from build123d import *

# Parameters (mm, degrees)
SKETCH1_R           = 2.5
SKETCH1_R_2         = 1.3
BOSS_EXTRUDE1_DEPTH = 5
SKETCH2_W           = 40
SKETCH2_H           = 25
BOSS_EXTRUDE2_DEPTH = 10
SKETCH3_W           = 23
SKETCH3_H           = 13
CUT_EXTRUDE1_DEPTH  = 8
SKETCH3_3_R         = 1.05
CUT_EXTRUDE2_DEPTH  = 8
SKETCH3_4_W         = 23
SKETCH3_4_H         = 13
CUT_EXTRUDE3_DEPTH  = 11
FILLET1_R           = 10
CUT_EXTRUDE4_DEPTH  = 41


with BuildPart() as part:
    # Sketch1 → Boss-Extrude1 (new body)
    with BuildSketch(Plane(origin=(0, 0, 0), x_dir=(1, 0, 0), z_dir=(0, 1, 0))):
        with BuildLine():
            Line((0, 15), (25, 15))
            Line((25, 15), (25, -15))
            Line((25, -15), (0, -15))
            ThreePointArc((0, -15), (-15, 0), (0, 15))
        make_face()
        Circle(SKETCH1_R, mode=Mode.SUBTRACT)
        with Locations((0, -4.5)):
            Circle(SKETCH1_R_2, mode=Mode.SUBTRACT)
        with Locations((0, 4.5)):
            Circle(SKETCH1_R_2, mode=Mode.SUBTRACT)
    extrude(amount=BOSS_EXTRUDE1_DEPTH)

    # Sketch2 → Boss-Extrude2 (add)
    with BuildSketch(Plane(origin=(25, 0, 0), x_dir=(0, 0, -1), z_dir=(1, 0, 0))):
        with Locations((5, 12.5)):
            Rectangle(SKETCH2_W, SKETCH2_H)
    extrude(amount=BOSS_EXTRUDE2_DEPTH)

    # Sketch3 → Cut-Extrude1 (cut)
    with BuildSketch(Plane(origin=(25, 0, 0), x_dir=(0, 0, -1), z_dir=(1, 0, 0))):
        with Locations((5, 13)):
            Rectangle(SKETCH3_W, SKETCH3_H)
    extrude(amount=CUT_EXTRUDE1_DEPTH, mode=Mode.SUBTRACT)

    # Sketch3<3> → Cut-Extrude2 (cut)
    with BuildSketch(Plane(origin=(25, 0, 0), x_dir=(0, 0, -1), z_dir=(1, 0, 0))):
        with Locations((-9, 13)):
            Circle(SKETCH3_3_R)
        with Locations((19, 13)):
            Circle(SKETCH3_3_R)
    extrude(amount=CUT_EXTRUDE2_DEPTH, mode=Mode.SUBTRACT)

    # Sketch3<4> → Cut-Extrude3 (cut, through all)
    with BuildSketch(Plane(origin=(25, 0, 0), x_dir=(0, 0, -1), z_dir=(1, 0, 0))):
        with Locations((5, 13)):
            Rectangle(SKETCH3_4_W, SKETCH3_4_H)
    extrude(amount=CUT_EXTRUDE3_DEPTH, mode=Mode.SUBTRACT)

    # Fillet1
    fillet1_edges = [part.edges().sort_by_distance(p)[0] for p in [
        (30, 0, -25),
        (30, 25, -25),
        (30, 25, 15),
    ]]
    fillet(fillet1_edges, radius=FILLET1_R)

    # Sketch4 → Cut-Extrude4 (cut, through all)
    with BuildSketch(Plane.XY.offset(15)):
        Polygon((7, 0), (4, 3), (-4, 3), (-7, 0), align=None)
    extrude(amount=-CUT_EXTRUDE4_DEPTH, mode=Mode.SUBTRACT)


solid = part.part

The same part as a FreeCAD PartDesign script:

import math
import FreeCAD as App
import Part
import Sketcher

V = App.Vector
Q = App.Units.Quantity


def edges_at(feature, points):
    """Names of the edges that pass closest to the given points."""
    edges = feature.Shape.Edges
    near = lambda p: min(range(len(edges)), key=lambda i: edges[i].distToShape(Part.Vertex(*p))[0])
    return sorted({f"Edge{near(p) + 1}" for p in points})

doc = App.newDocument("Part")
body = doc.addObject("PartDesign::Body", "Body")

sketch1 = body.newObject("Sketcher::SketchObject", "Sketch")
sketch1.AttachmentSupport = (doc.getObject("XZ_Plane"), [""])
sketch1.MapMode = "FlatFace"
sketch1.addGeometry([
    Part.LineSegment(V(25, -15, 0), V(0, -15, 0)),
    Part.ArcOfCircle(Part.Circle(V(0, 0, 0), V(0, 0, 1), 15), math.radians(90), math.radians(270)),
    Part.LineSegment(V(0, 15, 0), V(25, 15, 0)),
    Part.LineSegment(V(25, 15, 0), V(25, -15, 0)),
    Part.Circle(V(0, 4.5, 0), V(0, 0, 1), 1.3),
    Part.Circle(V(0, 0, 0), V(0, 0, 1), 2.5),
    Part.Circle(V(0, -4.5, 0), V(0, 0, 1), 1.3),
], False)
sketch1.addConstraint([
    Sketcher.Constraint("Tangent", 0, 2, 1, 2),
    Sketcher.Constraint("Tangent", 1, 1, 2, 1),
    Sketcher.Constraint("Coincident", 2, 2, 3, 1),
    Sketcher.Constraint("Coincident", 3, 2, 0, 1),
    Sketcher.Constraint("Horizontal", 0),
    Sketcher.Constraint("Horizontal", 2),
    Sketcher.Constraint("Vertical", 3),
    Sketcher.Constraint("Coincident", 1, 3, -1, 1),
    Sketcher.Constraint("Coincident", 5, 3, -1, 1),
    Sketcher.Constraint("Equal", 4, 6),
    Sketcher.Constraint("Symmetric", 4, 3, 6, 3, -1, 1),
    Sketcher.Constraint("PointOnObject", 4, 3, -2),
    Sketcher.Constraint("Diameter", 5, Q("5 mm")),
    Sketcher.Constraint("Radius", 1, Q("15 mm")),
    Sketcher.Constraint("Diameter", 4, Q("2.6 mm")),
    Sketcher.Constraint("DistanceX", 0, 2, 0, 1, Q("25 mm")),
    Sketcher.Constraint("DistanceY", 6, 3, 4, 3, Q("9 mm")),
])
pad1 = body.newObject("PartDesign::Pad", "Pad")
pad1.Profile = sketch1
pad1.Length = 5
pad1.Reversed = True

sketch2 = body.newObject("Sketcher::SketchObject", "Sketch001")
sketch2.AttachmentSupport = (doc.getObject("YZ_Plane"), [""])
sketch2.MapMode = "FlatFace"
sketch2.AttachmentOffset = App.Placement(V(0, 0, 25), App.Rotation())
sketch2.addGeometry([
    Part.LineSegment(V(25, 15, 0), V(0, 15, 0)),
    Part.LineSegment(V(0, 15, 0), V(0, -25, 0)),
    Part.LineSegment(V(0, -25, 0), V(25, -25, 0)),
    Part.LineSegment(V(25, -25, 0), V(25, 15, 0)),
], False)
sketch2.addConstraint([
    Sketcher.Constraint("Coincident", 0, 2, 1, 1),
    Sketcher.Constraint("Coincident", 1, 2, 2, 1),
    Sketcher.Constraint("Coincident", 2, 2, 3, 1),
    Sketcher.Constraint("Coincident", 3, 2, 0, 1),
    Sketcher.Constraint("Horizontal", 0),
    Sketcher.Constraint("Vertical", 1),
    Sketcher.Constraint("Horizontal", 2),
    Sketcher.Constraint("Vertical", 3),
    Sketcher.Constraint("PointOnObject", 0, 2, -2),
    Sketcher.Constraint("DistanceX", 0, 2, 0, 1, Q("25 mm")),
    Sketcher.Constraint("DistanceY", 1, 2, 1, 1, Q("40 mm")),
    Sketcher.Constraint("DistanceY", -1, 1, 0, 2, Q("15 mm")),
])
pad2 = body.newObject("PartDesign::Pad", "Pad001")
pad2.Profile = sketch2
pad2.Length = 10

sketch3 = body.newObject("Sketcher::SketchObject", "Sketch002")
sketch3.AttachmentSupport = (doc.getObject("YZ_Plane"), [""])
sketch3.MapMode = "FlatFace"
sketch3.AttachmentOffset = App.Placement(V(0, 0, 25), App.Rotation())
sketch3.addGeometry([
    Part.LineSegment(V(20, 6, 0), V(6, 6, 0)),
    Part.LineSegment(V(6, 6, 0), V(6, -16, 0)),
    Part.LineSegment(V(6, -16, 0), V(20, -16, 0)),
    Part.LineSegment(V(20, -16, 0), V(20, 6, 0)),
], False)
sketch3.addConstraint([
    Sketcher.Constraint("Coincident", 0, 2, 1, 1),
    Sketcher.Constraint("Coincident", 1, 2, 2, 1),
    Sketcher.Constraint("Coincident", 2, 2, 3, 1),
    Sketcher.Constraint("Coincident", 3, 2, 0, 1),
    Sketcher.Constraint("Horizontal", 0),
    Sketcher.Constraint("Vertical", 1),
    Sketcher.Constraint("Horizontal", 2),
    Sketcher.Constraint("Vertical", 3),
    Sketcher.Constraint("DistanceX", 0, 2, 0, 1, Q("13 mm")),
    Sketcher.Constraint("DistanceY", 1, 2, 1, 1, Q("23 mm")),
    Sketcher.Constraint("DistanceX", -1, 1, 0, 2, Q("6.5 mm")),
    Sketcher.Constraint("DistanceY", -1, 1, 0, 2, Q("6.5 mm")),
])
pocket1 = body.newObject("PartDesign::Pocket", "Pocket")
pocket1.Profile = sketch3
pocket1.Length = 8
pocket1.Reversed = True

sketch4 = body.newObject("Sketcher::SketchObject", "Sketch003")
sketch4.AttachmentSupport = (doc.getObject("YZ_Plane"), [""])
sketch4.MapMode = "FlatFace"
sketch4.AttachmentOffset = App.Placement(V(0, 0, 25), App.Rotation())
sketch4.addGeometry([
    Part.Circle(V(13, 9, 0), V(0, 0, 1), 1.1),
    Part.Circle(V(13, -19, 0), V(0, 0, 1), 1.1),
], False)
sketch4.addConstraint([
    Sketcher.Constraint("Equal", 0, 1),
    Sketcher.Constraint("Vertical", 0, 3, 1, 3),
    Sketcher.Constraint("Diameter", 0, Q("2.1 mm")),
    Sketcher.Constraint("DistanceX", -1, 1, 0, 3, Q("13 mm")),
    Sketcher.Constraint("DistanceY", -1, 1, 0, 3, Q("9 mm")),
    Sketcher.Constraint("DistanceY", 1, 3, -1, 1, Q("19 mm")),
])
pocket2 = body.newObject("PartDesign::Pocket", "Pocket001")
pocket2.Profile = sketch4
pocket2.Length = 8
pocket2.Reversed = True

sketch5 = body.newObject("Sketcher::SketchObject", "Sketch004")
sketch5.AttachmentSupport = (doc.getObject("YZ_Plane"), [""])
sketch5.MapMode = "FlatFace"
sketch5.AttachmentOffset = App.Placement(V(0, 0, 25), App.Rotation())
sketch5.addGeometry([
    Part.LineSegment(V(20, 6, 0), V(6, 6, 0)),
    Part.LineSegment(V(6, 6, 0), V(6, -16, 0)),
    Part.LineSegment(V(6, -16, 0), V(20, -16, 0)),
    Part.LineSegment(V(20, -16, 0), V(20, 6, 0)),
], False)
sketch5.addConstraint([
    Sketcher.Constraint("Coincident", 0, 2, 1, 1),
    Sketcher.Constraint("Coincident", 1, 2, 2, 1),
    Sketcher.Constraint("Coincident", 2, 2, 3, 1),
    Sketcher.Constraint("Coincident", 3, 2, 0, 1),
    Sketcher.Constraint("Horizontal", 0),
    Sketcher.Constraint("Vertical", 1),
    Sketcher.Constraint("Horizontal", 2),
    Sketcher.Constraint("Vertical", 3),
    Sketcher.Constraint("DistanceX", 0, 2, 0, 1, Q("13 mm")),
    Sketcher.Constraint("DistanceY", 1, 2, 1, 1, Q("23 mm")),
    Sketcher.Constraint("DistanceX", -1, 1, 0, 2, Q("6.5 mm")),
    Sketcher.Constraint("DistanceY", -1, 1, 0, 2, Q("6.5 mm")),
])
pocket3 = body.newObject("PartDesign::Pocket", "Pocket002")
pocket3.Profile = sketch5
pocket3.Type = "ThroughAll"
pocket3.Reversed = True
doc.recompute()

fillet = body.newObject("PartDesign::Fillet", "Fillet")
fillet.Base = (pocket3, edges_at(pocket3, [(30, 0, -25), (30, 25, -25), (30, 25, 15)]))
fillet.Radius = 10

sketch6 = body.newObject("Sketcher::SketchObject", "Sketch005")
sketch6.AttachmentSupport = (doc.getObject("XY_Plane"), [""])
sketch6.MapMode = "FlatFace"
sketch6.AttachmentOffset = App.Placement(V(0, 0, 15), App.Rotation())
sketch6.addGeometry([
    Part.LineSegment(V(7, 0, 0), V(4, 3, 0)),
    Part.LineSegment(V(4, 3, 0), V(-4, 3, 0)),
    Part.LineSegment(V(-4, 3, 0), V(-7, 0, 0)),
    Part.LineSegment(V(-7, 0, 0), V(7, 0, 0)),
], False)
sketch6.addConstraint([
    Sketcher.Constraint("Coincident", 0, 2, 1, 1),
    Sketcher.Constraint("Coincident", 1, 2, 2, 1),
    Sketcher.Constraint("Coincident", 2, 2, 3, 1),
    Sketcher.Constraint("Coincident", 3, 2, 0, 1),
    Sketcher.Constraint("Horizontal", 1),
    Sketcher.Constraint("Horizontal", 3),
    Sketcher.Constraint("Symmetric", 2, 2, 3, 2, -1, 1),
    Sketcher.Constraint("Perpendicular", 0, 2),
    Sketcher.Constraint("Equal", 0, 2),
    Sketcher.Constraint("DistanceX", 1, 2, 1, 1, Q("8 mm")),
    Sketcher.Constraint("DistanceX", 3, 1, 3, 2, Q("14 mm")),
])
pocket4 = body.newObject("PartDesign::Pocket", "Pocket003")
pocket4.Profile = sketch6
pocket4.Type = "ThroughAll"

doc.recompute()
